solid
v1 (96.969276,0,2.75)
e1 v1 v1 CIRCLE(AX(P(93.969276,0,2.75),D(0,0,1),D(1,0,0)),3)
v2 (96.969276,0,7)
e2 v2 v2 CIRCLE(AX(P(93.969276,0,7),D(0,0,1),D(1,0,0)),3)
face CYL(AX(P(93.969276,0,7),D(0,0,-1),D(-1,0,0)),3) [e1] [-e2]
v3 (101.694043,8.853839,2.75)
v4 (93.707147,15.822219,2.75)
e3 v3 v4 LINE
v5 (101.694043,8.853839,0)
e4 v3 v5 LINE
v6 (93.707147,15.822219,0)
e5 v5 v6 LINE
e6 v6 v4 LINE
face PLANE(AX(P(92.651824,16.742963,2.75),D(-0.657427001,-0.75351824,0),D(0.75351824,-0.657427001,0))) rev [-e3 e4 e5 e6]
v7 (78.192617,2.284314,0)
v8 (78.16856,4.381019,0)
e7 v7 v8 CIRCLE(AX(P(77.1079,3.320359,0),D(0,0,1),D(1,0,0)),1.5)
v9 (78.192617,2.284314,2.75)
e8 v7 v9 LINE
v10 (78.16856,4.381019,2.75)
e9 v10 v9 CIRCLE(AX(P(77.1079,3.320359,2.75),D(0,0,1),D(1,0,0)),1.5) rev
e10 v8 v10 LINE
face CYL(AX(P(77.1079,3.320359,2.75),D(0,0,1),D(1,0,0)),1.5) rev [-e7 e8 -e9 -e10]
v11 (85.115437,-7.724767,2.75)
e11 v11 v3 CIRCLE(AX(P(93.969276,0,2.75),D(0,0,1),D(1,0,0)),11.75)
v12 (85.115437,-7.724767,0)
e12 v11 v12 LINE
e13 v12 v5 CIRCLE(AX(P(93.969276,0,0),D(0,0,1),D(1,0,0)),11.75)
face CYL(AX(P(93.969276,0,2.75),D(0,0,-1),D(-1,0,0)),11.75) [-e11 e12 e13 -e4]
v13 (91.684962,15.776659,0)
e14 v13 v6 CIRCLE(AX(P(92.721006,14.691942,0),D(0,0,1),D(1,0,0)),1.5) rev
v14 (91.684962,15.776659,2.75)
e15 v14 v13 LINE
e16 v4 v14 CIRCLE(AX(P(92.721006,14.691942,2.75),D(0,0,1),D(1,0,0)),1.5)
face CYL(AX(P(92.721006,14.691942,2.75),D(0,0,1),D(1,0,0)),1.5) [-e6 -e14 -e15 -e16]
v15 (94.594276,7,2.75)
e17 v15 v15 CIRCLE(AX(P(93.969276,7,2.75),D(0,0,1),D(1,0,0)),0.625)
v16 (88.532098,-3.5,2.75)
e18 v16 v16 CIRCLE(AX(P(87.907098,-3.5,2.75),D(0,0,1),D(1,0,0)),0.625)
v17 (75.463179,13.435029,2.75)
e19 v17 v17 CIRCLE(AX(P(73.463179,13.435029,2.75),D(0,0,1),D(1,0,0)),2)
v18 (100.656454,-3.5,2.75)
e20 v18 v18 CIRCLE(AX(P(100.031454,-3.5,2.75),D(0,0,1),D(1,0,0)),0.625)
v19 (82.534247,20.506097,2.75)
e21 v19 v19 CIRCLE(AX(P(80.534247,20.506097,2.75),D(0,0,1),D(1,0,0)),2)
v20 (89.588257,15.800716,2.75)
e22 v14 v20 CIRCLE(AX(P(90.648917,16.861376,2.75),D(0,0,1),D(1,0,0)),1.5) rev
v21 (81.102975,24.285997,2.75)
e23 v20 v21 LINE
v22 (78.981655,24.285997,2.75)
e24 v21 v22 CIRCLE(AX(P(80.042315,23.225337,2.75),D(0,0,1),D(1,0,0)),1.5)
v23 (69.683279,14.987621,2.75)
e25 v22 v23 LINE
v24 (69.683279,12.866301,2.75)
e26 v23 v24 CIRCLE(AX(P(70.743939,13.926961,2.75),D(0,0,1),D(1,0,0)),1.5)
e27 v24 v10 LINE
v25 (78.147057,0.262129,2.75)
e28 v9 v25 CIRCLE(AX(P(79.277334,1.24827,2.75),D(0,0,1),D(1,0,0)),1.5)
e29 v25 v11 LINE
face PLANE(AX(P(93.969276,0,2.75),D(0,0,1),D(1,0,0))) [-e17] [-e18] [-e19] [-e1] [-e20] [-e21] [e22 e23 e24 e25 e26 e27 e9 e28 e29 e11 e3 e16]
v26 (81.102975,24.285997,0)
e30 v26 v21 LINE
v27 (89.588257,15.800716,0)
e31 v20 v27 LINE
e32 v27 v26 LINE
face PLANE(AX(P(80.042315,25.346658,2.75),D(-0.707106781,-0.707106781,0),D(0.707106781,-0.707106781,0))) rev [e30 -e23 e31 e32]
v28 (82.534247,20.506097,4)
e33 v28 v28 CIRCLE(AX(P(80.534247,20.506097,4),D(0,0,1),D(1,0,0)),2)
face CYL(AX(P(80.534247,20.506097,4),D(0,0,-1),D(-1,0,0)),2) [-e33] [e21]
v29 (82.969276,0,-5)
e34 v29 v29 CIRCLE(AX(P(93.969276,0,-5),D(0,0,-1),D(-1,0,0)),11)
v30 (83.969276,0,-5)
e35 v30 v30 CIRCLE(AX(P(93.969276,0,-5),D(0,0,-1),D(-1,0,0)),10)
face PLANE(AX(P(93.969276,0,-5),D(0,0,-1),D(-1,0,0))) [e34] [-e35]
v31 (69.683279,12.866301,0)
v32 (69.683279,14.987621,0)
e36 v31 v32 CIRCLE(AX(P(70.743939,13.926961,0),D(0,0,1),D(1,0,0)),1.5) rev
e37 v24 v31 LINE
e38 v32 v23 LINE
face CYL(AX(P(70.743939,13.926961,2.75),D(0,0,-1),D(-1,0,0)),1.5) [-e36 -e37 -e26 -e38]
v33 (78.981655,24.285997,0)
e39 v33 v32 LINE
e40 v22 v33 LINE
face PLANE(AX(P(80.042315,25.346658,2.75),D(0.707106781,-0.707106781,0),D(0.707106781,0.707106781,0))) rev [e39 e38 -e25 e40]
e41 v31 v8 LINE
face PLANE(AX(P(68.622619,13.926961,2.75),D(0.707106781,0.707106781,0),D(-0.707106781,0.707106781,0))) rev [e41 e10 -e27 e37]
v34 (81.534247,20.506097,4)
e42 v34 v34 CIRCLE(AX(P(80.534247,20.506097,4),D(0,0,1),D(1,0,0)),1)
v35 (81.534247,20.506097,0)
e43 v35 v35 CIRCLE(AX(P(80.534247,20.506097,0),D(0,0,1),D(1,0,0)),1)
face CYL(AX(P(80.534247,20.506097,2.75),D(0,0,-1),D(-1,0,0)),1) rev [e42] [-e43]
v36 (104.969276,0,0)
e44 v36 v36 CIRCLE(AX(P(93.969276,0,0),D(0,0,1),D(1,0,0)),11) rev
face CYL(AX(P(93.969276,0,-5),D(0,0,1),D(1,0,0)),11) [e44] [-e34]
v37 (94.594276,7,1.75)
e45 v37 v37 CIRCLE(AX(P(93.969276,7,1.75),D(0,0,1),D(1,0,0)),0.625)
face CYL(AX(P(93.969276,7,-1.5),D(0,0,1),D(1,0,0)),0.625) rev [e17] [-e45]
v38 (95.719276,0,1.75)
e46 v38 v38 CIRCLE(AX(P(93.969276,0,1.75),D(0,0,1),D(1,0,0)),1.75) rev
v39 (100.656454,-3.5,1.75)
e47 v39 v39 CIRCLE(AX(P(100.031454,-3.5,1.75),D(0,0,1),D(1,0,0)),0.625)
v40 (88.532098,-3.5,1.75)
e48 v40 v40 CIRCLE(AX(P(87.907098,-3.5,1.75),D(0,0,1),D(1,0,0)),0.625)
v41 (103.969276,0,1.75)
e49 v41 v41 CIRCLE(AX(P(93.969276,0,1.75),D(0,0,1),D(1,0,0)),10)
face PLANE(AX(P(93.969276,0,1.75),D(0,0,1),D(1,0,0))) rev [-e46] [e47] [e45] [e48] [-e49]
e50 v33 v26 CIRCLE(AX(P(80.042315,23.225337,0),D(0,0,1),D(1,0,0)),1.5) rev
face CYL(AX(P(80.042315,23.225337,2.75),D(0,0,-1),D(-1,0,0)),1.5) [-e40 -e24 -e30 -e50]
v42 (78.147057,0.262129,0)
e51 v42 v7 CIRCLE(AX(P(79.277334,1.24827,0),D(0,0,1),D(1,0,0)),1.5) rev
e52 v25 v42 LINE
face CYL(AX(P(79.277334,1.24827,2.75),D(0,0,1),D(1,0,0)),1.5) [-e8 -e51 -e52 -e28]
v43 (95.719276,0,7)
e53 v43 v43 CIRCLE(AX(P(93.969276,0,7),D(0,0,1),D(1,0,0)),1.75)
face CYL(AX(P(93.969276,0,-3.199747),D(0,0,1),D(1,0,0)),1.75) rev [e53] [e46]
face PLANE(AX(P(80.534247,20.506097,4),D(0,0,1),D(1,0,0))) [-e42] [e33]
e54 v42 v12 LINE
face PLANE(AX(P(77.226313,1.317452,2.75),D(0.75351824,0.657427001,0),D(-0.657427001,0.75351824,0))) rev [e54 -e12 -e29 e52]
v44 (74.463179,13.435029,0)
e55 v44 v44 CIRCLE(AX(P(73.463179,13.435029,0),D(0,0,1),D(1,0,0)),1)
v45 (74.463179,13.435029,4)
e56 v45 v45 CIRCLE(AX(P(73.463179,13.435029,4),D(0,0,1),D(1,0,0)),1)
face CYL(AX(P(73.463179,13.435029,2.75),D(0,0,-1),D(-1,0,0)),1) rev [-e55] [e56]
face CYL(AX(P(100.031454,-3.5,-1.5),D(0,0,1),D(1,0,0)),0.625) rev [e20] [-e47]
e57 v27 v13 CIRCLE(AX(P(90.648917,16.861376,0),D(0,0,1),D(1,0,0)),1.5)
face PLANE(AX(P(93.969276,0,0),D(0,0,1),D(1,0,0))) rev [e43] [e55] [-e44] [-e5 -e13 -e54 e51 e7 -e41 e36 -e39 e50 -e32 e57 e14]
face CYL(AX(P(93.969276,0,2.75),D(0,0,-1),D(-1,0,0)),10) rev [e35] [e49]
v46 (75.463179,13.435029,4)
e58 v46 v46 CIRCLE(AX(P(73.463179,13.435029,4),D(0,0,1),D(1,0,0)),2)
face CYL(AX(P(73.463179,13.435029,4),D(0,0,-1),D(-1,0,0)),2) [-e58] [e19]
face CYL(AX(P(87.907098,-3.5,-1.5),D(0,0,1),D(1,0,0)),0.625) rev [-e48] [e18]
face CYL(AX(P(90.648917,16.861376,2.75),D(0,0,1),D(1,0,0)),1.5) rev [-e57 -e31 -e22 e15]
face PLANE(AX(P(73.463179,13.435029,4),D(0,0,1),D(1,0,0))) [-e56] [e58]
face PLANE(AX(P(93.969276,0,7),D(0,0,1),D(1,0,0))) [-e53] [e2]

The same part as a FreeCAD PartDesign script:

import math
import FreeCAD as App
import Part
import Sketcher

V = App.Vector
Q = App.Units.Quantity


def edges_at(feature, points):
    """Names of the edges that pass closest to the given points."""
    edges = feature.Shape.Edges
    near = lambda p: min(range(len(edges)), key=lambda i: edges[i].distToShape(Part.Vertex(*p))[0])
    return sorted({f"Edge{near(p) + 1}" for p in points})

doc = App.newDocument("Part")
body = doc.addObject("PartDesign::Body", "Body")

sketch1 = body.newObject("Sketcher::SketchObject", "Sketch")
sketch1.AttachmentSupport = (doc.getObject("XY_Plane"), [""])
sketch1.MapMode = "FlatFace"
sketch1.addGeometry([
    Part.LineSegment(V(80, 25.3, 0), V(68.6, 13.9, 0)),
    Part.LineSegment(V(68.6, 13.9, 0), V(79.2, 3.3, 0)),
    Part.LineSegment(V(79.2, 3.3, 0), V(77.2, 1.3, 0)),
    Part.LineSegment(V(77.2, 1.3, 0), V(85.1, -7.7, 0)),
    Part.ArcOfCircle(Part.Circle(V(94, 0, 0), V(0, 0, 1), 11.8), math.radians(-139), math.radians(49)),
    Part.LineSegment(V(101.7, 8.9, 0), V(92.7, 16.7, 0)),
    Part.LineSegment(V(92.7, 16.7, 0), V(90.6, 14.7, 0)),
    Part.LineSegment(V(90.6, 14.7, 0), V(80, 25.3, 0)),
    Part.Circle(V(94, 0, 0), V(0, 0, 1), 10),
    Part.Circle(V(73.5, 13.4, 0), V(0, 0, 1), 1),
    Part.Circle(V(80.5, 20.5, 0), V(0, 0, 1), 1),
], False)
sketch1.addConstraint([
    Sketcher.Constraint("Coincident", 0, 2, 1, 1),
    Sketcher.Constraint("Coincident", 1, 2, 2, 1),
    Sketcher.Constraint("Coincident", 2, 2, 3, 1),
    Sketcher.Constraint("Tangent", 3, 2, 4, 1),
    Sketcher.Constraint("Tangent", 4, 2, 5, 1),
    Sketcher.Constraint("Coincident", 5, 2, 6, 1),
    Sketcher.Constraint("Coincident", 6, 2, 7, 1),
    Sketcher.Constraint("Coincident", 7, 2, 0, 1),
    Sketcher.Constraint("Coincident", 8, 3, 4, 3),
    Sketcher.Constraint("Equal", 9, 10),
    Sketcher.Constraint("PointOnObject", 4, 3, -1),
    Sketcher.Constraint("Perpendicular", 0, 1),
    Sketcher.Constraint("Perpendicular", 1, 2),
    Sketcher.Constraint("Parallel", 2, 6),
    Sketcher.Constraint("Perpendicular", 6, 7),
    Sketcher.Constraint("Equal", 3, 5),
    Sketcher.Constraint("Equal", 2, 6),
    Sketcher.Constraint("Equal", 1, 7),
    Sketcher.Constraint("Diameter", 8, 20.0),
    Sketcher.Constraint("Diameter", 9, 2.0),
    Sketcher.Constraint("Angle", 0, Q("-135 deg")),
    Sketcher.Constraint("Radius", 4, 11.75),
    Sketcher.Constraint("Distance", 1, 15.0),
    Sketcher.Constraint("Distance", 3, 12.0),
    Sketcher.Constraint("Distance", 0, 16.14989),
    Sketcher.Constraint("Distance", 2, 2.832539),
    Sketcher.Constraint("DistanceX", -1, 1, 9, 3, 73.463179),
    Sketcher.Constraint("DistanceY", -1, 1, 9, 3, 13.435029),
    Sketcher.Constraint("DistanceX", -1, 1, 0, 2, 68.622619),
    Sketcher.Constraint("DistanceX", 10, 3, 4, 3, 13.435029),
    Sketcher.Constraint("DistanceY", 6, 2, 10, 3, 5.766041),
])
pad1 = body.newObject("PartDesign::Pad", "Pad")
pad1.Profile = sketch1
pad1.Length = 2.75

sketch2 = body.newObject("Sketcher::SketchObject", "Sketch001")
sketch2.AttachmentSupport = (doc.getObject("XY_Plane"), [""])
sketch2.MapMode = "FlatFace"
sketch2.AttachmentOffset = App.Placement(V(0, 0, 1.75), App.Rotation())
sketch2.addGeometry(Part.Circle(V(94, 0, 0), V(0, 0, 1), 10), False)
sketch2.addConstraint([
    Sketcher.Constraint("PointOnObject", 0, 3, -1),
    Sketcher.Constraint("Diameter", 0, 20.0),
    Sketcher.Constraint("DistanceX", -1, 1, 0, 3, 93.969276),
])
pad2 = body.newObject("PartDesign::Pad", "Pad001")
pad2.Profile = sketch2
pad2.Length = 1

sketch3 = body.newObject("Sketcher::SketchObject", "Sketch002")
sketch3.AttachmentSupport = (doc.getObject("XY_Plane"), [""])
sketch3.MapMode = "FlatFace"
sketch3.AttachmentOffset = App.Placement(V(0, 0, -5), App.Rotation())
sketch3.addGeometry([
    Part.Circle(V(94, 0, 0), V(0, 0, 1), 11),
    Part.Circle(V(94, 0, 0), V(0, 0, 1), 10),
], False)
sketch3.addConstraint([
    Sketcher.Constraint("Coincident", 1, 3, 0, 3),
    Sketcher.Constraint("PointOnObject", 0, 3, -1),
    Sketcher.Constraint("Diameter", 0, 22.0),
    Sketcher.Constraint("Diameter", 1, 20.0),
    Sketcher.Constraint("DistanceX", -1, 1, 0, 3, 93.969276),
])
pad3 = body.newObject("PartDesign::Pad", "Pad002")
pad3.Profile = sketch3
pad3.Length = 5
doc.recompute()

fillet = body.newObject("PartDesign::Fillet", "Fillet")
fillet.Base = (pad3, edges_at(pad3, [
    (68.623, 13.927, 1.375),
    (80.042, 25.347, 1.375),
    (90.649, 14.74, 1.375),
    (79.229, 3.32, 1.375),
]))
fillet.Radius = 1.5
doc.recompute()

fillet2 = body.newObject("PartDesign::Fillet", "Fillet001")
fillet2.Base = (fillet, edges_at(fillet, [(77.226, 1.317, 1.375), (92.652, 16.743, 1.375)]))
fillet2.Radius = 1.5

sketch4 = body.newObject("Sketcher::SketchObject", "Sketch003")
sketch4.AttachmentSupport = (doc.getObject("XY_Plane"), [""])
sketch4.MapMode = "FlatFace"
sketch4.AttachmentOffset = App.Placement(V(0, 0, 2.75), App.Rotation())
sketch4.addGeometry([
    Part.Circle(V(73.5, 13.4, 0), V(0, 0, 1), 2),
    Part.Circle(V(73.5, 13.4, 0), V(0, 0, 1), 1),
    Part.Circle(V(80.5, 20.5, 0), V(0, 0, 1), 2),
    Part.Circle(V(80.5, 20.5, 0), V(0, 0, 1), 1),
], False)
sketch4.addConstraint([
    Sketcher.Constraint("Coincident", 1, 3, 0, 3),
    Sketcher.Constraint("Coincident", 3, 3, 2, 3),
    Sketcher.Constraint("Equal", 0, 2),
    Sketcher.Constraint("Equal", 1, 3),
    Sketcher.Constraint("Diameter", 0, 4.0),
    Sketcher.Constraint("Diameter", 1, 2.0),
    Sketcher.Constraint("DistanceX", -1, 1, 0, 3, 73.463179),
    Sketcher.Constraint("DistanceY", -1, 1, 0, 3, 13.435029),
    Sketcher.Constraint("DistanceX", -1, 1, 2, 3, 80.534247),
    Sketcher.Constraint("DistanceY", -1, 1, 2, 3, 20.506097),
])
pad4 = body.newObject("PartDesign::Pad", "Pad003")
pad4.Profile = sketch4
pad4.Length = 1.25

sketch5 = body.newObject("Sketcher::SketchObject", "Sketch004")
sketch5.AttachmentSupport = (doc.getObject("XY_Plane"), [""])
sketch5.MapMode = "FlatFace"
sketch5.AttachmentOffset = App.Placement(V(0, 0, 2.75), App.Rotation())
sketch5.addGeometry(Part.Circle(V(94, 0, 0), V(0, 0, 1), 1.8), False)
sketch5.addConstraint([
    Sketcher.Constraint("PointOnObject", 0, 3, -1),
    Sketcher.Constraint("Diameter", 0, 3.5),
    Sketcher.Constraint("DistanceX", -1, 1, 0, 3, 93.969276),
])
pocket1 = body.newObject("PartDesign::Pocket", "Pocket")
pocket1.Profile = sketch5
pocket1.Length = 1

sketch6 = body.newObject("Sketcher::SketchObject", "Sketch005")
sketch6.AttachmentSupport = (doc.getObject("XY_Plane"), [""])
sketch6.MapMode = "FlatFace"
sketch6.AttachmentOffset = App.Placement(V(0, 0, 7), App.Rotation())
sketch6.addGeometry([
    Part.Circle(V(94, 0, 0), V(0, 0, 1), 3),
    Part.Circle(V(94, 0, 0), V(0, 0, 1), 1.8),
], False)
sketch6.addConstraint([
    Sketcher.Constraint("Coincident", 1, 3, 0, 3),
    Sketcher.Constraint("PointOnObject", 0, 3, -1),
    Sketcher.Constraint("Diameter", 0, 6.0),
    Sketcher.Constraint("Diameter", 1, 3.5),
    Sketcher.Constraint("DistanceX", -1, 1, 0, 3, 93.969276),
])
pad5 = body.newObject("PartDesign::Pad", "Pad004")
pad5.Profile = sketch6
pad5.Length = 4.25
pad5.Reversed = True

sketch7 = body.newObject("Sketcher::SketchObject", "Sketch006")
sketch7.AttachmentSupport = (doc.getObject("XY_Plane"), [""])
sketch7.MapMode = "FlatFace"
sketch7.AttachmentOffset = App.Placement(V(0, 0, 2.75), App.Rotation())
sketch7.addGeometry([
    Part.Circle(V(94, 7, 0), V(0, 0, 1), 0.6),
    Part.Circle(V(100, -3.5, 0), V(0, 0, 1), 0.6),
    Part.Circle(V(87.9, -3.5, 0), V(0, 0, 1), 0.6),
], False)
sketch7.addConstraint([
    Sketcher.Constraint("Equal", 0, 1),
    Sketcher.Constraint("Equal", 1, 2),
    Sketcher.Constraint("Horizontal", 1, 3, 2, 3),
    Sketcher.Constraint("Diameter", 0, 1.25),
    Sketcher.Constraint("DistanceY", -1, 1, 0, 3, 7.0),
    Sketcher.Constraint("DistanceY", 1, 3, -1, 1, 3.5),
    Sketcher.Constraint("DistanceX", -1, 1, 2, 3, 87.907098),
    Sketcher.Constraint("DistanceX", -1, 1, 0, 3, 93.969276),
    Sketcher.Constraint("DistanceX", -1, 1, 1, 3, 100.031454),
])
pocket2 = body.newObject("PartDesign::Pocket", "Pocket001")
pocket2.Profile = sketch7
pocket2.Length = 4.25

doc.recompute()
